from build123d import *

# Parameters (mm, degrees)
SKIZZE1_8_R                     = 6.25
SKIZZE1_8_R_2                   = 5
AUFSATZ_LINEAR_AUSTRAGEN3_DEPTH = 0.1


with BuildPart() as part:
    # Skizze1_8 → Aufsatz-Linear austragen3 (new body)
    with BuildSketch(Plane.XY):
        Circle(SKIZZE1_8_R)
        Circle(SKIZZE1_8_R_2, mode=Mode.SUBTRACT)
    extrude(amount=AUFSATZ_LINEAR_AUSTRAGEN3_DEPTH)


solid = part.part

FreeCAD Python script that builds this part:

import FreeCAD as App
import Part
import Sketcher

doc = App.newDocument("Part")
body = doc.addObject("PartDesign::Body", "Body")

# Sketch on XY plane
sketch1 = body.newObject("Sketcher::SketchObject", "Sketch")
sketch1.AttachmentSupport = (doc.getObject("XY_Plane"), [""])
sketch1.MapMode = "FlatFace"
sketch1.addGeometry([
    Part.Circle(App.Vector(0, 0, 0), App.Vector(0, 0, 1), 6),
    Part.Circle(App.Vector(0, 0, 0), App.Vector(0, 0, 1), 5),
], False)
sketch1.addConstraint([
    Sketcher.Constraint("Coincident", 0, 3, -1, 1),
    Sketcher.Constraint("Coincident", 1, 3, -1, 1),
    Sketcher.Constraint("Diameter", 1, 10.0),
    Sketcher.Constraint("Diameter", 0, 12.5),
])
pad1 = body.newObject("PartDesign::Pad", "Pad")
pad1.Profile = sketch1
pad1.Length = 0.1

doc.recompute()
